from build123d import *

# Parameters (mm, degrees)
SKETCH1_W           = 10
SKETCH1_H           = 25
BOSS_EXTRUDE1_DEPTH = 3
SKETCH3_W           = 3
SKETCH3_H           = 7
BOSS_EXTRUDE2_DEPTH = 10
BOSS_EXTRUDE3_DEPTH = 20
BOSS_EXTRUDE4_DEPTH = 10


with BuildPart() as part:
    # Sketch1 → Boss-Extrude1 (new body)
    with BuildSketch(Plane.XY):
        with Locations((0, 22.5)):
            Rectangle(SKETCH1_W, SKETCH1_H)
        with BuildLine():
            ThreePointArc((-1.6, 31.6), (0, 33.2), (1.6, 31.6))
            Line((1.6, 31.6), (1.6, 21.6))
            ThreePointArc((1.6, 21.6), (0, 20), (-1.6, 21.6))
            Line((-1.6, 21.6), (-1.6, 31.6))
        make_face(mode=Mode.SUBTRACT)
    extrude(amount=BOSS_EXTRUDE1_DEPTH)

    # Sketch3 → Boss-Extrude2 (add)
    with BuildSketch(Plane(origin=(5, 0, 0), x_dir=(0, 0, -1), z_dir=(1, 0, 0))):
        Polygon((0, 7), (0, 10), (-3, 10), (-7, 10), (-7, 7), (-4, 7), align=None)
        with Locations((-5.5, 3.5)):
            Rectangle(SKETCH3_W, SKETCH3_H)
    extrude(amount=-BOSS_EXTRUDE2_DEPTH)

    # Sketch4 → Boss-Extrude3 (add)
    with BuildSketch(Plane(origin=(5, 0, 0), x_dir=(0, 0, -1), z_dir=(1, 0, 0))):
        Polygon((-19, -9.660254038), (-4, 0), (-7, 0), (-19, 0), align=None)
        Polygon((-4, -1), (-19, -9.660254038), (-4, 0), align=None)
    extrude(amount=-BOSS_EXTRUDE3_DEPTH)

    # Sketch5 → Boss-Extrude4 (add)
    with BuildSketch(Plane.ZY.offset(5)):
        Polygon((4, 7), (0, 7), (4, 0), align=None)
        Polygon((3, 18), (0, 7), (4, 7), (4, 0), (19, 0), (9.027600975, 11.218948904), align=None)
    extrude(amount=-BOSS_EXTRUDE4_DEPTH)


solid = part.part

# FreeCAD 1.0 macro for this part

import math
import FreeCAD as App
import Part
import Sketcher
Q = App.Units.Quantity


def add_polygon(sketch, points):
    """Adds a closed chain of lines whose ends are joined by coincident constraints."""
    first, n = sketch.GeometryCount, len(points)
    for a, b in zip(points, points[1:] + points[:1]):
        sketch.addGeometry(Part.LineSegment(App.Vector(*a, 0), App.Vector(*b, 0)), False)
    for i in range(n):
        sketch.addConstraint(Sketcher.Constraint("Coincident", first + i, 2, first + (i + 1) % n, 1))

doc = App.newDocument("Part")
body = doc.addObject("PartDesign::Body", "Body")

sketch1 = body.newObject("Sketcher::SketchObject", "Sketch")
sketch1.AttachmentSupport = (doc.getObject("XY_Plane"), [""])
sketch1.MapMode = "FlatFace"
add_polygon(sketch1, [(-5, 35), (-5, 10), (5, 10), (5, 35)])
sketch1.addGeometry(Part.LineSegment(App.Vector(-1.6, 21.6, 0), App.Vector(-1.6, 31.6, 0)), False)
sketch1.addGeometry(Part.ArcOfCircle(Part.Circle(App.Vector(0, 31.6, 0), App.Vector(0, 0, 1), 1.6), math.radians(0), math.radians(180)), False)
sketch1.addGeometry(Part.LineSegment(App.Vector(1.6, 31.6, 0), App.Vector(1.6, 21.6, 0)), False)
sketch1.addGeometry(Part.ArcOfCircle(Part.Circle(App.Vector(0, 21.6, 0), App.Vector(0, 0, 1), 1.6), math.radians(180), math.radians(360)), False)
sketch1.addConstraint([
    Sketcher.Constraint("Tangent", 4, 2, 5, 2),
    Sketcher.Constraint("Tangent", 5, 1, 6, 1),
    Sketcher.Constraint("Tangent", 6, 2, 7, 2),
    Sketcher.Constraint("Tangent", 7, 1, 4, 1),
    Sketcher.Constraint("Vertical", 0),
    Sketcher.Constraint("Horizontal", 1),
    Sketcher.Constraint("Vertical", 2),
    Sketcher.Constraint("Horizontal", 3),
    Sketcher.Constraint("Vertical", 4),
    Sketcher.Constraint("Vertical", 6),
    Sketcher.Constraint("PointOnObject", 5, 3, -2),
    Sketcher.Constraint("Equal", 3, 4),
    Sketcher.Constraint("Radius", 5, 1.6),
    Sketcher.Constraint("DistanceX", 1, 1, 1, 2, 10.0),
    Sketcher.Constraint("DistanceY", 0, 2, 0, 1, 25.0),
    Sketcher.Constraint("DistanceX", 0, 2, -1, 1, 5.0),
    Sketcher.Constraint("DistanceY", -1, 1, 0, 2, 10.0),
    Sketcher.Constraint("DistanceY", -1, 1, 5, 3, 31.6),
])
pad1 = body.newObject("PartDesign::Pad", "Pad")
pad1.Profile = sketch1
pad1.Length = 3

sketch2 = body.newObject("Sketcher::SketchObject", "Sketch001")
sketch2.AttachmentSupport = (doc.getObject("YZ_Plane"), [""])
sketch2.MapMode = "FlatFace"
sketch2.AttachmentOffset = App.Placement(App.Vector(0, 0, 5), App.Rotation())
add_polygon(sketch2, [(7, 0), (10, 0), (10, 7), (0, 7), (0, 4), (7, 4)])
sketch2.addConstraint([
    Sketcher.Constraint("Horizontal", 0),
    Sketcher.Constraint("Vertical", 1),
    Sketcher.Constraint("Horizontal", 2),
    Sketcher.Constraint("Vertical", 3),
    Sketcher.Constraint("Horizontal", 4),
    Sketcher.Constraint("Vertical", 5),
    Sketcher.Constraint("PointOnObject", 0, 2, -1),
    Sketcher.Constraint("PointOnObject", 2, 2, -2),
    Sketcher.Constraint("Equal", 4, 1),
    Sketcher.Constraint("Equal", 0, 3),
    Sketcher.Constraint("DistanceX", 0, 1, 0, 2, 3.0),
    Sketcher.Constraint("DistanceX", 2, 2, 2, 1, 10.0),
])
pad2 = body.newObject("PartDesign::Pad", "Pad001")
pad2.Profile = sketch2
pad2.Length = 10
pad2.Reversed = True

sketch3 = body.newObject("Sketcher::SketchObject", "Sketch002")
sketch3.AttachmentSupport = (doc.getObject("YZ_Plane"), [""])
sketch3.MapMode = "FlatFace"
sketch3.AttachmentOffset = App.Placement(App.Vector(0, 0, 5), App.Rotation())
add_polygon(sketch3, [(0, 4), (0, 19), (-9.7, 19), (-1, 4)])
sketch3.addConstraint([
    Sketcher.Constraint("Vertical", 0),
    Sketcher.Constraint("Horizontal", 1),
    Sketcher.Constraint("Horizontal", 3),
    Sketcher.Constraint("PointOnObject", 0, 2, -2),
    Sketcher.Constraint("DistanceX", 3, 1, 3, 2, 1.0),
    Sketcher.Constraint("DistanceY", 0, 1, 0, 2, 15.0),
    Sketcher.Constraint("Angle", 2, Q("-60 deg")),
    Sketcher.Constraint("DistanceY", -1, 1, 0, 2, 19.0),
])
pad3 = body.newObject("PartDesign::Pad", "Pad002")
pad3.Profile = sketch3
pad3.Length = 20
pad3.Reversed = True

sketch4 = body.newObject("Sketcher::SketchObject", "Sketch003")
sketch4.AttachmentSupport = (doc.getObject("YZ_Plane"), [""])
sketch4.MapMode = "FlatFace"
sketch4.AttachmentOffset = App.Placement(App.Vector(0, 0, -5), App.Rotation())
add_polygon(sketch4, [(7, 0), (0, 4), (0, 19), (11, 9), (18, 3)])
sketch4.addConstraint([
    Sketcher.Constraint("Vertical", 1),
    Sketcher.Constraint("PointOnObject", 0, 2, -2),
    Sketcher.Constraint("PointOnObject", 4, 2, -1),
    Sketcher.Constraint("Parallel", 2, 3),
    Sketcher.Constraint("DistanceY", 1, 1, 1, 2, 15.0),
    Sketcher.Constraint("DistanceY", -1, 1, 0, 2, 4.0),
    Sketcher.Constraint("DistanceX", -1, 1, 3, 2, 18.0),
    Sketcher.Constraint("DistanceY", -1, 1, 3, 2, 3.0),
    Sketcher.Constraint("DistanceX", -1, 1, 4, 2, 7.0),
    Sketcher.Constraint("DistanceY", -1, 1, 2, 2, 9.027601),
])
pad4 = body.newObject("PartDesign::Pad", "Pad003")
pad4.Profile = sketch4
pad4.Length = 10

doc.recompute()
